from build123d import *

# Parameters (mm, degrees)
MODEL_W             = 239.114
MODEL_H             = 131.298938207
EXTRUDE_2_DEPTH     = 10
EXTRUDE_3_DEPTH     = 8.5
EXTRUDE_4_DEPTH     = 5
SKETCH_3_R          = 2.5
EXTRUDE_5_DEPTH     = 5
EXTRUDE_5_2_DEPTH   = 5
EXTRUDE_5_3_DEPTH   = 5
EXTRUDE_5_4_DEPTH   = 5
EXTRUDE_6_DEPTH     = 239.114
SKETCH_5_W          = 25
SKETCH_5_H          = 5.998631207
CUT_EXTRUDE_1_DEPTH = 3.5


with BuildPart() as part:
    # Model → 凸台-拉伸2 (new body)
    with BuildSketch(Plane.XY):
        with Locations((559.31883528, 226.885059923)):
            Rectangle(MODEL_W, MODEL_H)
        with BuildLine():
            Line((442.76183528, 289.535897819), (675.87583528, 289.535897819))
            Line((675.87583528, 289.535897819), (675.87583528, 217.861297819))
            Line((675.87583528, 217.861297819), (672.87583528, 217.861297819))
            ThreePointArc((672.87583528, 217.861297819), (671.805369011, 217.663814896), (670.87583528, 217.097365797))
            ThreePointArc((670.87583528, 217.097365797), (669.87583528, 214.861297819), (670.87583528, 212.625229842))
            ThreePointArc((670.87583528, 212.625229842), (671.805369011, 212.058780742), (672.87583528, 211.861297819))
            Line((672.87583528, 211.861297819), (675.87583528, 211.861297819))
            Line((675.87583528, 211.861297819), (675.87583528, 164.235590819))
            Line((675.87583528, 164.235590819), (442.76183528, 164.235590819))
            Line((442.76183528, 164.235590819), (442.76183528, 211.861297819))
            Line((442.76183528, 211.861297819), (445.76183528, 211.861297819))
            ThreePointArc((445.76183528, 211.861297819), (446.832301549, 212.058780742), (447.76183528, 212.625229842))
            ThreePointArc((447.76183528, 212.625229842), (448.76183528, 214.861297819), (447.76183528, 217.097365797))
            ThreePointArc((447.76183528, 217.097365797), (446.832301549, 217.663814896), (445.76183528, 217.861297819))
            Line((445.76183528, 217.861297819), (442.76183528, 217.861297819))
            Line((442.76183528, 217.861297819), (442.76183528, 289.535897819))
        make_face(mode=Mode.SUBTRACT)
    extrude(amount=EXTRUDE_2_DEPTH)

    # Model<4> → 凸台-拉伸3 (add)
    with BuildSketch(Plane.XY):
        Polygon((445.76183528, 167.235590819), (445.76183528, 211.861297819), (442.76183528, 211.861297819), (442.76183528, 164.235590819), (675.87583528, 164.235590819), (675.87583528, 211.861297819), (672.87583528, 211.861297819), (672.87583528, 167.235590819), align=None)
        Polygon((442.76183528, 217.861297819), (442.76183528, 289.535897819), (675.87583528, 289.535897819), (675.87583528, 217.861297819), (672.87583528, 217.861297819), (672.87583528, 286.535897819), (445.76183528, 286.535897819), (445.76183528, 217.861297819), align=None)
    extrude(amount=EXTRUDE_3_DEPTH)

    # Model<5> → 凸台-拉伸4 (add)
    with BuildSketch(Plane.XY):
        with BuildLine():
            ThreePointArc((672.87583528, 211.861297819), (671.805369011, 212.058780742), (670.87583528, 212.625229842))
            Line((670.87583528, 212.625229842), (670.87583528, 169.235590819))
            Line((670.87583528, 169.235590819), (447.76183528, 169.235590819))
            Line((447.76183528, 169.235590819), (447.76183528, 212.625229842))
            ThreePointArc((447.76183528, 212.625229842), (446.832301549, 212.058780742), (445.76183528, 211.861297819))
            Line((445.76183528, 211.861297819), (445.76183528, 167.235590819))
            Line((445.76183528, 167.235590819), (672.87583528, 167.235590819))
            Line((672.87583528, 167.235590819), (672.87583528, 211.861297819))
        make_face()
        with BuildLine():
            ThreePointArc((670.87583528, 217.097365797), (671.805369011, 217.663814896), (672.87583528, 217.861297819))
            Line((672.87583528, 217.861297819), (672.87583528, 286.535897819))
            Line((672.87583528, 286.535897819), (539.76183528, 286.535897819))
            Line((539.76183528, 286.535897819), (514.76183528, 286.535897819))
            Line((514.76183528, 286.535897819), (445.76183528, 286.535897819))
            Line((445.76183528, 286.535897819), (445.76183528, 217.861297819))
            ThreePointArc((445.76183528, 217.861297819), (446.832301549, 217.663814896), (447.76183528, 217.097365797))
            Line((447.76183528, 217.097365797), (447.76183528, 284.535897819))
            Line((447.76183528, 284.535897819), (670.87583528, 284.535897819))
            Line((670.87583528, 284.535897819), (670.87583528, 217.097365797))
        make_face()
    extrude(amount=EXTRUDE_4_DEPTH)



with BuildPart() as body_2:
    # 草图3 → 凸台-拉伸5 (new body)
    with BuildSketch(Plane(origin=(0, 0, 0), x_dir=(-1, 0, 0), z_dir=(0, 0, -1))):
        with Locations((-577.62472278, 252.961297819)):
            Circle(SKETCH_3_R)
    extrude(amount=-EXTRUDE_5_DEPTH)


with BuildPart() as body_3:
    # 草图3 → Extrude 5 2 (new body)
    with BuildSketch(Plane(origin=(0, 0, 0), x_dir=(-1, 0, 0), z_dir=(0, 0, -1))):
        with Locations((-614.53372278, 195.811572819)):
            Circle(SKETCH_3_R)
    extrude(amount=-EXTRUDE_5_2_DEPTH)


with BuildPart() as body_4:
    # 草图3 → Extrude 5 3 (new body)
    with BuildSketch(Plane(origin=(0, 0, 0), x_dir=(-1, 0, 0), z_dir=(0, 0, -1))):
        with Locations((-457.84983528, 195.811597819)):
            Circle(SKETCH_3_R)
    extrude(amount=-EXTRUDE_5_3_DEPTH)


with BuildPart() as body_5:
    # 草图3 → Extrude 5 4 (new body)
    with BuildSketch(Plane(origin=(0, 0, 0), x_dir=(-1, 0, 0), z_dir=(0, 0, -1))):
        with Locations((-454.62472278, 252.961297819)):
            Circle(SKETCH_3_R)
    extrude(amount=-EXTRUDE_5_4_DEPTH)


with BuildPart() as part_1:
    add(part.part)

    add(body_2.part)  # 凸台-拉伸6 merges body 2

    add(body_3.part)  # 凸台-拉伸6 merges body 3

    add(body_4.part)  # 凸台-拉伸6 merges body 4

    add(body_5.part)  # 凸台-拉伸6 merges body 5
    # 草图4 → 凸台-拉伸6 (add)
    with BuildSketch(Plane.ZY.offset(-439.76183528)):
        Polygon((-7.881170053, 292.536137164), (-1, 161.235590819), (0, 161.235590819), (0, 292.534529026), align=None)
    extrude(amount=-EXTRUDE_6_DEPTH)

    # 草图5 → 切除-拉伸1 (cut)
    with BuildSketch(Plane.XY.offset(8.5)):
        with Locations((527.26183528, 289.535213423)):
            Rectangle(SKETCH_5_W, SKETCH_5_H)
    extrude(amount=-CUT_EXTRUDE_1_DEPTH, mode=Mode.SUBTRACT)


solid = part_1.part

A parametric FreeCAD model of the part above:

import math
import FreeCAD as App
import Part
import Sketcher
from FreeCAD import Vector
Q = App.Units.Quantity


def add_polygon(sketch, points):
    """Adds a closed chain of lines whose ends are joined by coincident constraints."""
    first, n = sketch.GeometryCount, len(points)
    for a, b in zip(points, points[1:] + points[:1]):
        sketch.addGeometry(Part.LineSegment(App.Vector(*a, 0), App.Vector(*b, 0)), False)
    for i in range(n):
        sketch.addConstraint(Sketcher.Constraint("Coincident", first + i, 2, first + (i + 1) % n, 1))

doc = App.newDocument("Part")
params = doc.addObject("Spreadsheet::Sheet", "Params")
for row, (alias, value) in enumerate([
    ("sketch1_radius", "3 mm"),
    ("sketch1_width", "3 mm"),
    ("pad1_length", "10 mm"),
    ("sketch2_width", "3 mm"),
    ("pad2_length", "8.5 mm"),
    ("sketch3_radius", "3 mm"),
    ("sketch3_width", "2 mm"),
    ("pad3_length", "5 mm"),
    ("sketch4_diameter", "5 mm"),
    ("pad4_length", "5 mm"),
    ("sketch5_diameter", "5 mm"),
    ("pad5_length", "5 mm"),
    ("sketch6_diameter", "5 mm"),
    ("pad6_length", "5 mm"),
    ("sketch7_diameter", "5 mm"),
    ("pad7_length", "5 mm"),
    ("sketch8_height", "1 mm"),
    ("pad8_length", "239.114 mm"),
    ("sketch9_width", "25 mm"),
    ("pocket1_length", "3.5 mm"),
], start=1):
    params.set(f"A{row}", alias)
    params.set(f"B{row}", "=" + value)
    params.setAlias(f"B{row}", alias)

body = doc.addObject("PartDesign::Body", "Body")

# Sketch on XY plane
sketch1 = body.newObject("Sketcher::SketchObject", "Sketch")
sketch1.AttachmentSupport = (doc.getObject("XY_Plane"), [""])
sketch1.MapMode = "FlatFace"
add_polygon(sketch1, [(439.8, 292.5), (439.8, 161.2), (678.9, 161.2), (678.9, 292.5)])  # lines 0-3
sketch1.addGeometry(Part.LineSegment(Vector(442.8, 217.9, 0), Vector(442.8, 289.5, 0)), False)  # 4
sketch1.addGeometry(Part.LineSegment(Vector(442.8, 289.5, 0), Vector(675.9, 289.5, 0)), False)  # 5
sketch1.addGeometry(Part.LineSegment(Vector(675.9, 289.5, 0), Vector(675.9, 217.9, 0)), False)  # 6
sketch1.addGeometry(Part.LineSegment(Vector(675.9, 217.9, 0), Vector(672.9, 217.9, 0)), False)  # 7
sketch1.addGeometry(Part.ArcOfCircle(Part.Circle(Vector(672.9, 214.9, 0), Vector(0, 0, 1), 3), math.radians(90), math.radians(132)), False)  # 8
sketch1.addGeometry(Part.ArcOfCircle(Part.Circle(Vector(672.9, 214.9, 0), Vector(0, 0, 1), 3), math.radians(132), math.radians(228)), False)  # 9
sketch1.addGeometry(Part.ArcOfCircle(Part.Circle(Vector(672.9, 214.9, 0), Vector(0, 0, 1), 3), math.radians(-132), math.radians(-90)), False)  # 10
sketch1.addGeometry(Part.LineSegment(Vector(672.9, 211.9, 0), Vector(675.9, 211.9, 0)), False)  # 11
sketch1.addGeometry(Part.LineSegment(Vector(675.9, 211.9, 0), Vector(675.9, 164.2, 0)), False)  # 12
sketch1.addGeometry(Part.LineSegment(Vector(675.9, 164.2, 0), Vector(442.8, 164.2, 0)), False)  # 13
sketch1.addGeometry(Part.LineSegment(Vector(442.8, 164.2, 0), Vector(442.8, 211.9, 0)), False)  # 14
sketch1.addGeometry(Part.LineSegment(Vector(442.8, 211.9, 0), Vector(445.8, 211.9, 0)), False)  # 15
sketch1.addGeometry(Part.ArcOfCircle(Part.Circle(Vector(445.8, 214.9, 0), Vector(0, 0, 1), 3), math.radians(-90), math.radians(-48)), False)  # 16
sketch1.addGeometry(Part.ArcOfCircle(Part.Circle(Vector(445.8, 214.9, 0), Vector(0, 0, 1), 3), math.radians(-48), math.radians(48)), False)  # 17
sketch1.addGeometry(Part.ArcOfCircle(Part.Circle(Vector(445.8, 214.9, 0), Vector(0, 0, 1), 3), math.radians(48), math.radians(90)), False)  # 18
sketch1.addGeometry(Part.LineSegment(Vector(445.8, 217.9, 0), Vector(442.8, 217.9, 0)), False)  # 19
sketch1.addConstraint([
    Sketcher.Constraint("Coincident", 4, 2, 5, 1),
    Sketcher.Constraint("Coincident", 5, 2, 6, 1),
    Sketcher.Constraint("Coincident", 6, 2, 7, 1),
    Sketcher.Constraint("Tangent", 7, 2, 8, 1),
    Sketcher.Constraint("Tangent", 8, 2, 9, 1),
    Sketcher.Constraint("Tangent", 9, 2, 10, 1),
    Sketcher.Constraint("Tangent", 10, 2, 11, 1),
    Sketcher.Constraint("Coincident", 11, 2, 12, 1),
    Sketcher.Constraint("Coincident", 12, 2, 13, 1),
    Sketcher.Constraint("Coincident", 13, 2, 14, 1),
    Sketcher.Constraint("Coincident", 14, 2, 15, 1),
    Sketcher.Constraint("Tangent", 15, 2, 16, 1),
    Sketcher.Constraint("Tangent", 16, 2, 17, 1),
    Sketcher.Constraint("Tangent", 17, 2, 18, 1),
    Sketcher.Constraint("Tangent", 18, 2, 19, 1),
    Sketcher.Constraint("Coincident", 19, 2, 4, 1),
    Sketcher.Constraint("Vertical", 0),
    Sketcher.Constraint("Horizontal", 1),
    Sketcher.Constraint("Vertical", 2),
    Sketcher.Constraint("Horizontal", 3),
    Sketcher.Constraint("Vertical", 4),
    Sketcher.Constraint("Horizontal", 5),
    Sketcher.Constraint("Vertical", 6),
    Sketcher.Constraint("Horizontal", 7),
    Sketcher.Constraint("Horizontal", 11),
    Sketcher.Constraint("Vertical", 12),
    Sketcher.Constraint("Horizontal", 13),
    Sketcher.Constraint("Vertical", 14),
    Sketcher.Constraint("Horizontal", 15),
    Sketcher.Constraint("Horizontal", 19),
    Sketcher.Constraint("Coincident", 10, 3, 8, 3),
    Sketcher.Constraint("Coincident", 18, 3, 16, 3),
    Sketcher.Constraint("Equal", 10, 16),
    Sketcher.Constraint("Horizontal", 10, 3, 16, 3),
    Sketcher.Constraint("Horizontal", 9, 2, 16, 2),
    Sketcher.Constraint("Horizontal", 8, 2, 17, 2),
    Sketcher.Constraint("Vertical", 8, 2, 9, 2),
    Sketcher.Constraint("Vertical", 6, 2, 11, 2),
    Sketcher.Constraint("Vertical", 4, 2, 13, 2),
    Sketcher.Constraint("Equal", 11, 15),
    Sketcher.Constraint("Radius", 8, Q("3 mm")),
    Sketcher.Constraint("DistanceX", 7, 2, 7, 1, Q("3 mm")),
    Sketcher.Constraint("DistanceX", 0, 2, 18, 3, Q("6 mm")),
    Sketcher.Constraint("DistanceX", 8, 3, 1, 2, Q("6 mm")),
    Sketcher.Constraint("DistanceX", 8, 2, 7, 2, Q("2 mm")),
    Sketcher.Constraint("DistanceY", 1, 2, 12, 2, Q("3 mm")),
    Sketcher.Constraint("DistanceX", 1, 1, 1, 2, Q("239.114 mm")),
    Sketcher.Constraint("DistanceY", 4, 1, 4, 2, Q("71.6746 mm")),
    Sketcher.Constraint("DistanceY", 0, 2, 0, 1, Q("131.298938 mm")),
    Sketcher.Constraint("DistanceY", 12, 2, 12, 1, Q("47.625707 mm")),
    Sketcher.Constraint("DistanceY", -1, 1, 0, 2, Q("161.235591 mm")),
    Sketcher.Constraint("DistanceX", -1, 1, 8, 3, Q("672.875835 mm")),
])
sketch1.setExpression("Constraints[44]", "Params.sketch1_radius")
sketch1.setExpression("Constraints[45]", "Params.sketch1_width")
pad1 = body.newObject("PartDesign::Pad", "Pad")
pad1.Profile = sketch1
pad1.setExpression("Length", "Params.pad1_length")

# Sketch on XY plane
sketch2 = body.newObject("Sketcher::SketchObject", "Sketch001")
sketch2.AttachmentSupport = (doc.getObject("XY_Plane"), [""])
sketch2.MapMode = "FlatFace"
add_polygon(sketch2, [(445.8, 167.2), (445.8, 211.9), (442.8, 211.9), (442.8, 164.2), (675.9, 164.2), (675.9, 211.9), (672.9, 211.9), (672.9, 167.2)])  # lines 0-7
add_polygon(sketch2, [(442.8, 289.5), (442.8, 217.9), (445.8, 217.9), (445.8, 286.5), (672.9, 286.5), (672.9, 217.9), (675.9, 217.9), (675.9, 289.5)])  # lines 8-15
sketch2.addConstraint([
    Sketcher.Constraint("Vertical", 0),
    Sketcher.Constraint("Horizontal", 1),
    Sketcher.Constraint("Vertical", 2),
    Sketcher.Constraint("Horizontal", 3),
    Sketcher.Constraint("Vertical", 4),
    Sketcher.Constraint("Horizontal", 5),
    Sketcher.Constraint("Vertical", 6),
    Sketcher.Constraint("Horizontal", 7),
    Sketcher.Constraint("Vertical", 8),
    Sketcher.Constraint("Horizontal", 9),
    Sketcher.Constraint("Vertical", 10),
    Sketcher.Constraint("Horizontal", 11),
    Sketcher.Constraint("Vertical", 12),
    Sketcher.Constraint("Horizontal", 13),
    Sketcher.Constraint("Vertical", 14),
    Sketcher.Constraint("Horizontal", 15),
    Sketcher.Constraint("Horizontal", 1, 2, 4, 2),
    Sketcher.Constraint("Horizontal", 9, 2, 12, 2),
    Sketcher.Constraint("Vertical", 2, 2, 8, 2),
    Sketcher.Constraint("Vertical", 7, 2, 9, 2),
    Sketcher.Constraint("Vertical", 6, 2, 11, 2),
    Sketcher.Constraint("Vertical", 4, 2, 13, 2),
    Sketcher.Constraint("Equal", 1, 5),
    Sketcher.Constraint("DistanceX", 1, 2, 1, 1, Q("3 mm")),
    Sketcher.Constraint("DistanceY", 3, 2, 6, 2, Q("3 mm")),
    Sketcher.Constraint("DistanceY", 1, 2, 8, 2, Q("6 mm")),
    Sketcher.Constraint("DistanceY", 11, 2, 14, 2, Q("3 mm")),
    Sketcher.Constraint("DistanceX", 3, 1, 3, 2, Q("233.114 mm")),
    Sketcher.Constraint("DistanceY", 8, 2, 8, 1, Q("71.6746 mm")),
    Sketcher.Constraint("DistanceY", 0, 1, 0, 2, Q("44.625707 mm")),
    Sketcher.Constraint("DistanceY", -1, 1, 2, 2, Q("164.235591 mm")),
    Sketcher.Constraint("DistanceX", -1, 1, 0, 2, Q("445.761835 mm")),
])
sketch2.setExpression("Constraints[39]", "Params.sketch2_width")
pad2 = body.newObject("PartDesign::Pad", "Pad001")
pad2.Profile = sketch2
pad2.setExpression("Length", "Params.pad2_length")

# Sketch on XY plane
sketch3 = body.newObject("Sketcher::SketchObject", "Sketch002")
sketch3.AttachmentSupport = (doc.getObject("XY_Plane"), [""])
sketch3.MapMode = "FlatFace"
sketch3.addGeometry([
    Part.ArcOfCircle(Part.Circle(Vector(672.9, 214.9, 0), Vector(0, 0, 1), 3), math.radians(-132), math.radians(-90)),  # 0
    Part.LineSegment(Vector(670.9, 212.6, 0), Vector(670.9, 169.2, 0)),  # 1
    Part.LineSegment(Vector(670.9, 169.2, 0), Vector(447.8, 169.2, 0)),  # 2
    Part.LineSegment(Vector(447.8, 169.2, 0), Vector(447.8, 212.6, 0)),  # 3
    Part.ArcOfCircle(Part.Circle(Vector(445.8, 214.9, 0), Vector(0, 0, 1), 3), math.radians(-90), math.radians(-48)),  # 4
    Part.LineSegment(Vector(445.8, 211.9, 0), Vector(445.8, 167.2, 0)),  # 5
    Part.LineSegment(Vector(445.8, 167.2, 0), Vector(672.9, 167.2, 0)),  # 6
    Part.LineSegment(Vector(672.9, 167.2, 0), Vector(672.9, 211.9, 0)),  # 7
    Part.ArcOfCircle(Part.Circle(Vector(672.9, 214.9, 0), Vector(0, 0, 1), 3), math.radians(90), math.radians(132)),  # 8
    Part.LineSegment(Vector(672.9, 217.9, 0), Vector(672.9, 286.5, 0)),  # 9
    Part.LineSegment(Vector(672.9, 286.5, 0), Vector(445.8, 286.5, 0)),  # 10
    Part.LineSegment(Vector(445.8, 286.5, 0), Vector(445.8, 217.9, 0)),  # 11
    Part.ArcOfCircle(Part.Circle(Vector(445.8, 214.9, 0), Vector(0, 0, 1), 3), math.radians(48), math.radians(90)),  # 12
    Part.LineSegment(Vector(447.8, 217.1, 0), Vector(447.8, 284.5, 0)),  # 13
    Part.LineSegment(Vector(447.8, 284.5, 0), Vector(670.9, 284.5, 0)),  # 14
    Part.LineSegment(Vector(670.9, 284.5, 0), Vector(670.9, 217.1, 0)),  # 15
], False)
sketch3.addConstraint([
    Sketcher.Constraint("Coincident", 0, 1, 1, 1),
    Sketcher.Constraint("Coincident", 1, 2, 2, 1),
    Sketcher.Constraint("Coincident", 2, 2, 3, 1),
    Sketcher.Constraint("Coincident", 3, 2, 4, 2),
    Sketcher.Constraint("Coincident", 4, 1, 5, 1),
    Sketcher.Constraint("Coincident", 5, 2, 6, 1),
    Sketcher.Constraint("Coincident", 6, 2, 7, 1),
    Sketcher.Constraint("Coincident", 7, 2, 0, 2),
    Sketcher.Constraint("Coincident", 8, 1, 9, 1),
    Sketcher.Constraint("Coincident", 9, 2, 10, 1),
    Sketcher.Constraint("Coincident", 10, 2, 11, 1),
    Sketcher.Constraint("Coincident", 11, 2, 12, 2),
    Sketcher.Constraint("Coincident", 12, 1, 13, 1),
    Sketcher.Constraint("Coincident", 13, 2, 14, 1),
    Sketcher.Constraint("Coincident", 14, 2, 15, 1),
    Sketcher.Constraint("Coincident", 15, 2, 8, 2),
    Sketcher.Constraint("Vertical", 1),
    Sketcher.Constraint("Horizontal", 2),
    Sketcher.Constraint("Vertical", 3),
    Sketcher.Constraint("Vertical", 5),
    Sketcher.Constraint("Horizontal", 6),
    Sketcher.Constraint("Vertical", 7),
    Sketcher.Constraint("Vertical", 9),
    Sketcher.Constraint("Horizontal", 10),
    Sketcher.Constraint("Vertical", 11),
    Sketcher.Constraint("Vertical", 13),
    Sketcher.Constraint("Horizontal", 14),
    Sketcher.Constraint("Vertical", 15),
    Sketcher.Constraint("Coincident", 8, 3, 0, 3),
    Sketcher.Constraint("Coincident", 12, 3, 4, 3),
    Sketcher.Constraint("Equal", 0, 4),
    Sketcher.Constraint("Equal", 4, 8),
    Sketcher.Constraint("Equal", 8, 12),
    Sketcher.Constraint("Horizontal", 0, 3, 4, 3),
    Sketcher.Constraint("Horizontal", 0, 1, 3, 2),
    Sketcher.Constraint("Horizontal", 12, 1, 15, 2),
    Sketcher.Constraint("Vertical", 12, 3, 4, 1),
    Sketcher.Constraint("Vertical", 8, 3, 6, 2),
    Sketcher.Constraint("Vertical", 7, 2, 8, 1),
    Sketcher.Constraint("Vertical", 5, 2, 10, 2),
    Sketcher.Constraint("Vertical", 3, 2, 12, 1),
    Sketcher.Constraint("Radius", 0, Q("3 mm")),
    Sketcher.Constraint("DistanceX", 0, 1, 0, 3, Q("2 mm")),
    Sketcher.Constraint("DistanceY", 5, 2, 2, 2, Q("2 mm")),
    Sketcher.Constraint("DistanceY", 13, 2, 10, 2, Q("2 mm")),
    Sketcher.Constraint("DistanceX", 2, 2, 2, 1, Q("223.114 mm")),
    Sketcher.Constraint("DistanceY", 9, 1, 9, 2, Q("68.6746 mm")),
    Sketcher.Constraint("DistanceY", 1, 2, 1, 1, Q("43.389639 mm")),
    Sketcher.Constraint("DistanceY", -1, 1, 0, 1, Q("212.62523 mm")),
    Sketcher.Constraint("DistanceX", -1, 1, 0, 3, Q("672.875835 mm")),
])
sketch3.setExpression("Constraints[41]", "Params.sketch3_radius")
sketch3.setExpression("Constraints[42]", "Params.sketch3_width")
pad3 = body.newObject("PartDesign::Pad", "Pad002")
pad3.Profile = sketch3
pad3.setExpression("Length", "Params.pad3_length")
body2 = doc.addObject("PartDesign::Body", "Body001")

# Sketch on XY plane
sketch4 = body2.newObject("Sketcher::SketchObject", "Sketch003")
sketch4.AttachmentSupport = (doc.getObject("XY_Plane001"), [""])
sketch4.MapMode = "FlatFace"
sketch4.addGeometry(Part.Circle(Vector(577.6, 253, 0), Vector(0, 0, 1), 2.5), False)
sketch4.addConstraint([
    Sketcher.Constraint("Diameter", 0, Q("5 mm")),
    Sketcher.Constraint("DistanceX", -1, 1, 0, 3, Q("577.624723 mm")),
    Sketcher.Constraint("DistanceY", -1, 1, 0, 3, Q("252.961298 mm")),
])
sketch4.setExpression("Constraints[0]", "Params.sketch4_diameter")
pad4 = body2.newObject("PartDesign::Pad", "Pad003")
pad4.Profile = sketch4
pad4.setExpression("Length", "Params.pad4_length")
body3 = doc.addObject("PartDesign::Body", "Body002")

# Sketch on XY plane
sketch5 = body3.newObject("Sketcher::SketchObject", "Sketch004")
sketch5.AttachmentSupport = (doc.getObject("XY_Plane002"), [""])
sketch5.MapMode = "FlatFace"
sketch5.addGeometry(Part.Circle(Vector(614.5, 195.8, 0), Vector(0, 0, 1), 2.5), False)
sketch5.addConstraint([
    Sketcher.Constraint("Diameter", 0, Q("5 mm")),
    Sketcher.Constraint("DistanceX", -1, 1, 0, 3, Q("614.533723 mm")),
    Sketcher.Constraint("DistanceY", -1, 1, 0, 3, Q("195.811573 mm")),
])
sketch5.setExpression("Constraints[0]", "Params.sketch5_diameter")
pad5 = body3.newObject("PartDesign::Pad", "Pad004")
pad5.Profile = sketch5
pad5.setExpression("Length", "Params.pad5_length")
body4 = doc.addObject("PartDesign::Body", "Body003")

# Sketch on XY plane
sketch6 = body4.newObject("Sketcher::SketchObject", "Sketch005")
sketch6.AttachmentSupport = (doc.getObject("XY_Plane003"), [""])
sketch6.MapMode = "FlatFace"
sketch6.addGeometry(Part.Circle(Vector(457.8, 195.8, 0), Vector(0, 0, 1), 2.5), False)
sketch6.addConstraint([
    Sketcher.Constraint("Diameter", 0, Q("5 mm")),
    Sketcher.Constraint("DistanceX", -1, 1, 0, 3, Q("457.849835 mm")),
    Sketcher.Constraint("DistanceY", -1, 1, 0, 3, Q("195.811598 mm")),
])
sketch6.setExpression("Constraints[0]", "Params.sketch6_diameter")
pad6 = body4.newObject("PartDesign::Pad", "Pad005")
pad6.Profile = sketch6
pad6.setExpression("Length", "Params.pad6_length")
body5 = doc.addObject("PartDesign::Body", "Body004")

# Sketch on XY plane
sketch7 = body5.newObject("Sketcher::SketchObject", "Sketch006")
sketch7.AttachmentSupport = (doc.getObject("XY_Plane004"), [""])
sketch7.MapMode = "FlatFace"
sketch7.addGeometry(Part.Circle(Vector(454.6, 253, 0), Vector(0, 0, 1), 2.5), False)
sketch7.addConstraint([
    Sketcher.Constraint("Diameter", 0, Q("5 mm")),
    Sketcher.Constraint("DistanceX", -1, 1, 0, 3, Q("454.624723 mm")),
    Sketcher.Constraint("DistanceY", -1, 1, 0, 3, Q("252.961298 mm")),
])
sketch7.setExpression("Constraints[0]", "Params.sketch7_diameter")
pad7 = body5.newObject("PartDesign::Pad", "Pad006")
pad7.Profile = sketch7
pad7.setExpression("Length", "Params.pad7_length")
body.AllowCompound = True
doc.recompute()

boolean = body.newObject("PartDesign::Boolean", "Boolean")
boolean.Type = "Fuse"
boolean.addObjects([body2])
doc.recompute()

boolean2 = body.newObject("PartDesign::Boolean", "Boolean001")
boolean2.Type = "Fuse"
boolean2.addObjects([body3])
doc.recompute()

boolean3 = body.newObject("PartDesign::Boolean", "Boolean002")
boolean3.Type = "Fuse"
boolean3.addObjects([body4])
doc.recompute()

boolean4 = body.newObject("PartDesign::Boolean", "Boolean003")
boolean4.Type = "Fuse"
boolean4.addObjects([body5])

# Sketch on YZ plane
sketch8 = body.newObject("Sketcher::SketchObject", "Sketch007")
sketch8.AttachmentSupport = (doc.getObject("YZ_Plane"), [""])
sketch8.MapMode = "FlatFace"
sketch8.AttachmentOffset = App.Placement(Vector(0, 0, 439.761835), App.Rotation())
add_polygon(sketch8, [(292.5, -7.9), (161.2, -1), (161.2, 0), (292.5, 0)])  # lines 0-3
sketch8.addConstraint([
    Sketcher.Constraint("Vertical", 1),
    Sketcher.Constraint("Horizontal", 2),
    Sketcher.Constraint("PointOnObject", 1, 2, -1),
    Sketcher.Constraint("DistanceY", 1, 1, 1, 2, Q("1 mm")),
    Sketcher.Constraint("Angle", 0, Q("177 deg")),
    Sketcher.Constraint("DistanceX", 2, 1, 2, 2, Q("131.298938 mm")),
    Sketcher.Constraint("Distance", 3, Q("7.88117 mm")),
    Sketcher.Constraint("DistanceX", -1, 1, 0, 2, Q("161.235591 mm")),
])
sketch8.setExpression("Constraints[7]", "Params.sketch8_height")
pad8 = body.newObject("PartDesign::Pad", "Pad007")
pad8.Profile = sketch8
pad8.setExpression("Length", "Params.pad8_length")

# Sketch on XY plane
sketch9 = body.newObject("Sketcher::SketchObject", "Sketch008")
sketch9.AttachmentSupport = (doc.getObject("XY_Plane"), [""])
sketch9.MapMode = "FlatFace"
sketch9.AttachmentOffset = App.Placement(Vector(0, 0, 8.5), App.Rotation())
add_polygon(sketch9, [(515, 293), (515, 287), (540, 287), (540, 293)])  # lines 0-3
sketch9.addConstraint([
    Sketcher.Constraint("Vertical", 0),
    Sketcher.Constraint("Horizontal", 1),
    Sketcher.Constraint("Vertical", 2),
    Sketcher.Constraint("Horizontal", 3),
    Sketcher.Constraint("DistanceX", 1, 1, 1, 2, Q("25 mm")),
    Sketcher.Constraint("DistanceY", 0, 2, 0, 1, Q("5.998631 mm")),
    Sketcher.Constraint("DistanceY", -1, 1, 2, 2, Q("292.534529 mm")),
    Sketcher.Constraint("DistanceX", -1, 1, 0, 2, Q("514.761835 mm")),
])
sketch9.setExpression("Constraints[8]", "Params.sketch9_width")
pocket1 = body.newObject("PartDesign::Pocket", "Pocket")
pocket1.Profile = sketch9
pocket1.setExpression("Length", "Params.pocket1_length")

doc.recompute()
